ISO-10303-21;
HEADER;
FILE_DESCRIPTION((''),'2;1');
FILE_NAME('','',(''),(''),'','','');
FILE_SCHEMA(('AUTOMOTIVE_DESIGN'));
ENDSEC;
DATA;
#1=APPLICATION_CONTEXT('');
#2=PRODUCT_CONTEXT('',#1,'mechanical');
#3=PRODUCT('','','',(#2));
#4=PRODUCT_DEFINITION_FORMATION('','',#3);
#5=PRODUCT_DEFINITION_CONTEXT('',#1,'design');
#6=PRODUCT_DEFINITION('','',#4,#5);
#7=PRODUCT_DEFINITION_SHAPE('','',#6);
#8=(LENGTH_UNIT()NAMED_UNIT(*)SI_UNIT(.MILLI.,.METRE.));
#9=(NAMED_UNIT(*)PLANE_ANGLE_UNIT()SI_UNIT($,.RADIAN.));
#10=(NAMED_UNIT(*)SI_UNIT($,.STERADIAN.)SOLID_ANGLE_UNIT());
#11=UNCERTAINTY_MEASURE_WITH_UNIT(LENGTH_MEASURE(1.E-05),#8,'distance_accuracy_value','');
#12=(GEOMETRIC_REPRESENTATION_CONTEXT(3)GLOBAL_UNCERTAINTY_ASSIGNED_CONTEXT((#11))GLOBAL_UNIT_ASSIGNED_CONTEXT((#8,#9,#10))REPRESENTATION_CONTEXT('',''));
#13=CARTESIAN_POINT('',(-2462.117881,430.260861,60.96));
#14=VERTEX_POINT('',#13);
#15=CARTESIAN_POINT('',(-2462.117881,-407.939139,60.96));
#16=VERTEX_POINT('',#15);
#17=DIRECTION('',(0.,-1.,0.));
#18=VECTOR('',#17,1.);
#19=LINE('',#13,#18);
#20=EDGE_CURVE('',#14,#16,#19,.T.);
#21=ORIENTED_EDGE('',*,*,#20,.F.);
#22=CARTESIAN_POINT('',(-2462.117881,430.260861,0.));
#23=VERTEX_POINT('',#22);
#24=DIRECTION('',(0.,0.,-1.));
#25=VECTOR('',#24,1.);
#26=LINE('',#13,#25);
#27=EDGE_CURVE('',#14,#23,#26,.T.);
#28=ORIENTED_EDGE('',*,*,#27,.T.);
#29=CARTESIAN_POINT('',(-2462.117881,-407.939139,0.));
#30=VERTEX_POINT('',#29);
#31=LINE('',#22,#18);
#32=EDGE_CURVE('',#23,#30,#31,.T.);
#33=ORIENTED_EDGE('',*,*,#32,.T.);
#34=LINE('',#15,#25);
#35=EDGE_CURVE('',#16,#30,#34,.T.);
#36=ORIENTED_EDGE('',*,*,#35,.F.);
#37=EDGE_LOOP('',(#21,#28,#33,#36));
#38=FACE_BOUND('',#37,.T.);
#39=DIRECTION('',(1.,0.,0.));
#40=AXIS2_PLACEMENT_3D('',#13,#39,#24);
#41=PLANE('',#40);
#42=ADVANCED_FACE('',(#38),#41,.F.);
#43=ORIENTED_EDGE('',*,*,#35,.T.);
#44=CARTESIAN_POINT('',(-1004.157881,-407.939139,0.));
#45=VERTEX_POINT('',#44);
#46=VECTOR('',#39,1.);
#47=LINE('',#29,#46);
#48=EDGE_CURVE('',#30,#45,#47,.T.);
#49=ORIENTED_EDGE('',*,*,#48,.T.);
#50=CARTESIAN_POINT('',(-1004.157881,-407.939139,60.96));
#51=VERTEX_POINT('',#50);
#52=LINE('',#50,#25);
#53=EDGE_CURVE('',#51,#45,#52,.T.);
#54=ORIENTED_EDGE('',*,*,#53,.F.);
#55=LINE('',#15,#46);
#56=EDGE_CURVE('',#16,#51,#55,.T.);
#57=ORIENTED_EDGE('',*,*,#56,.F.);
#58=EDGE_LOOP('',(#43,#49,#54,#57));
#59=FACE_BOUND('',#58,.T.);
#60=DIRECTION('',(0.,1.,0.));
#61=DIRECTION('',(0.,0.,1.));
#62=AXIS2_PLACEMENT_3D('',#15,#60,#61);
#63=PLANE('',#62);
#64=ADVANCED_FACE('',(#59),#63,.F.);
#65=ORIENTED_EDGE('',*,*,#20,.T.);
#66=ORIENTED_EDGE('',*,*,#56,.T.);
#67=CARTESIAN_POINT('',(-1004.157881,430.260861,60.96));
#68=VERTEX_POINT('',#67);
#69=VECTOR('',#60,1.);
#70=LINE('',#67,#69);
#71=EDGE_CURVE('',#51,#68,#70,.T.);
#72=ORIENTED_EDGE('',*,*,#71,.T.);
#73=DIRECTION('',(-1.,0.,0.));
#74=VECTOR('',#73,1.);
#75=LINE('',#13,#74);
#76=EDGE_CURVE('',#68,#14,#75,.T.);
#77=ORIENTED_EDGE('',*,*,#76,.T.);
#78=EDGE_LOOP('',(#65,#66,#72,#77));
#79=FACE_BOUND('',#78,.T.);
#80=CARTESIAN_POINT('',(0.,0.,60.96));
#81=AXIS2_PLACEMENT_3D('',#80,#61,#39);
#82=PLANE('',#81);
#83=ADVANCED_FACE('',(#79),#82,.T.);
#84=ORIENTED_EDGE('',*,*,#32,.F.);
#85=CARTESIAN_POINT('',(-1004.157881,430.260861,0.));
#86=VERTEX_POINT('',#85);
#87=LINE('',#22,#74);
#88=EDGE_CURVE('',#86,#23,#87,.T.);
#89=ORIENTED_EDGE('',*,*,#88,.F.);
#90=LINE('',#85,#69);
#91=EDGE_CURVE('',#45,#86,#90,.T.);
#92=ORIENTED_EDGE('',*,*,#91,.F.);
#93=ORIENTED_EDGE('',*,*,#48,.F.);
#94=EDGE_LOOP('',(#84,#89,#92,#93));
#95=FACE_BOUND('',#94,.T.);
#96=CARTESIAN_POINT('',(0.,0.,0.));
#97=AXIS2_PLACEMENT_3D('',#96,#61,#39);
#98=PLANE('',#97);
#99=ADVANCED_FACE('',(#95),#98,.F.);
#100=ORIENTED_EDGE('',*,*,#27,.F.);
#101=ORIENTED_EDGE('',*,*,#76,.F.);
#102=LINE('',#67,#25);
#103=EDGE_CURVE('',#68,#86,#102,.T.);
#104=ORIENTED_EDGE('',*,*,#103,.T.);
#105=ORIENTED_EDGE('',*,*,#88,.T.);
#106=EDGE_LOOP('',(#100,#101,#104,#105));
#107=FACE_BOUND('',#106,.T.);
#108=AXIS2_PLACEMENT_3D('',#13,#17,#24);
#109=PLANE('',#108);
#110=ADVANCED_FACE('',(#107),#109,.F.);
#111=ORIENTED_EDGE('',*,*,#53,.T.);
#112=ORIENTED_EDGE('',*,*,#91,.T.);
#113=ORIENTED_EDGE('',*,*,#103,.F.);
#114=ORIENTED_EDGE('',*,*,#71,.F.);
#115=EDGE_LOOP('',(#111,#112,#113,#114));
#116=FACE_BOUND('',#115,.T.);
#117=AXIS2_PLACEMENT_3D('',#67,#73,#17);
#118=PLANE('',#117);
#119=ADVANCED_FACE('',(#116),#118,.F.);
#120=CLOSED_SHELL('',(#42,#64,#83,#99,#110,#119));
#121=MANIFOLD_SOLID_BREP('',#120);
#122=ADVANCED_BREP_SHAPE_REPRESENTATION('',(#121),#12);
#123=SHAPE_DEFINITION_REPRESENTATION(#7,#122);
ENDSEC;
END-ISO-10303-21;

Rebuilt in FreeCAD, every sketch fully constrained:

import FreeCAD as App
import Part
import Sketcher

V = App.Vector
Q = App.Units.Quantity


def add_polygon(sketch, points):
    """Adds a closed chain of lines whose ends are joined by coincident constraints."""
    first, n = sketch.GeometryCount, len(points)
    for a, b in zip(points, points[1:] + points[:1]):
        sketch.addGeometry(Part.LineSegment(App.Vector(*a, 0), App.Vector(*b, 0)), False)
    for i in range(n):
        sketch.addConstraint(Sketcher.Constraint("Coincident", first + i, 2, first + (i + 1) % n, 1))

doc = App.newDocument("Part")
body = doc.addObject("PartDesign::Body", "Body")

sketch1 = body.newObject("Sketcher::SketchObject", "Sketch")
sketch1.AttachmentSupport = (doc.getObject("XY_Plane"), [""])
sketch1.MapMode = "FlatFace"
add_polygon(sketch1, [(-2462, 430), (-2462, -408), (-1004, -408), (-1004, 430)])
sketch1.addConstraint([
    Sketcher.Constraint("Vertical", 0),
    Sketcher.Constraint("Horizontal", 1),
    Sketcher.Constraint("Vertical", 2),
    Sketcher.Constraint("Horizontal", 3),
    Sketcher.Constraint("DistanceY", 0, 2, 0, 1, Q("33 in")),
    Sketcher.Constraint("DistanceX", 1, 1, 1, 2, Q("57.4 in")),
    Sketcher.Constraint("DistanceX", 0, 2, -1, 1, 2462.117881),
    Sketcher.Constraint("DistanceY", 0, 2, -1, 1, 407.939139),
])
pad1 = body.newObject("PartDesign::Pad", "Pad")
pad1.Profile = sketch1
pad1.Length = Q("2.4 in")

doc.recompute()
